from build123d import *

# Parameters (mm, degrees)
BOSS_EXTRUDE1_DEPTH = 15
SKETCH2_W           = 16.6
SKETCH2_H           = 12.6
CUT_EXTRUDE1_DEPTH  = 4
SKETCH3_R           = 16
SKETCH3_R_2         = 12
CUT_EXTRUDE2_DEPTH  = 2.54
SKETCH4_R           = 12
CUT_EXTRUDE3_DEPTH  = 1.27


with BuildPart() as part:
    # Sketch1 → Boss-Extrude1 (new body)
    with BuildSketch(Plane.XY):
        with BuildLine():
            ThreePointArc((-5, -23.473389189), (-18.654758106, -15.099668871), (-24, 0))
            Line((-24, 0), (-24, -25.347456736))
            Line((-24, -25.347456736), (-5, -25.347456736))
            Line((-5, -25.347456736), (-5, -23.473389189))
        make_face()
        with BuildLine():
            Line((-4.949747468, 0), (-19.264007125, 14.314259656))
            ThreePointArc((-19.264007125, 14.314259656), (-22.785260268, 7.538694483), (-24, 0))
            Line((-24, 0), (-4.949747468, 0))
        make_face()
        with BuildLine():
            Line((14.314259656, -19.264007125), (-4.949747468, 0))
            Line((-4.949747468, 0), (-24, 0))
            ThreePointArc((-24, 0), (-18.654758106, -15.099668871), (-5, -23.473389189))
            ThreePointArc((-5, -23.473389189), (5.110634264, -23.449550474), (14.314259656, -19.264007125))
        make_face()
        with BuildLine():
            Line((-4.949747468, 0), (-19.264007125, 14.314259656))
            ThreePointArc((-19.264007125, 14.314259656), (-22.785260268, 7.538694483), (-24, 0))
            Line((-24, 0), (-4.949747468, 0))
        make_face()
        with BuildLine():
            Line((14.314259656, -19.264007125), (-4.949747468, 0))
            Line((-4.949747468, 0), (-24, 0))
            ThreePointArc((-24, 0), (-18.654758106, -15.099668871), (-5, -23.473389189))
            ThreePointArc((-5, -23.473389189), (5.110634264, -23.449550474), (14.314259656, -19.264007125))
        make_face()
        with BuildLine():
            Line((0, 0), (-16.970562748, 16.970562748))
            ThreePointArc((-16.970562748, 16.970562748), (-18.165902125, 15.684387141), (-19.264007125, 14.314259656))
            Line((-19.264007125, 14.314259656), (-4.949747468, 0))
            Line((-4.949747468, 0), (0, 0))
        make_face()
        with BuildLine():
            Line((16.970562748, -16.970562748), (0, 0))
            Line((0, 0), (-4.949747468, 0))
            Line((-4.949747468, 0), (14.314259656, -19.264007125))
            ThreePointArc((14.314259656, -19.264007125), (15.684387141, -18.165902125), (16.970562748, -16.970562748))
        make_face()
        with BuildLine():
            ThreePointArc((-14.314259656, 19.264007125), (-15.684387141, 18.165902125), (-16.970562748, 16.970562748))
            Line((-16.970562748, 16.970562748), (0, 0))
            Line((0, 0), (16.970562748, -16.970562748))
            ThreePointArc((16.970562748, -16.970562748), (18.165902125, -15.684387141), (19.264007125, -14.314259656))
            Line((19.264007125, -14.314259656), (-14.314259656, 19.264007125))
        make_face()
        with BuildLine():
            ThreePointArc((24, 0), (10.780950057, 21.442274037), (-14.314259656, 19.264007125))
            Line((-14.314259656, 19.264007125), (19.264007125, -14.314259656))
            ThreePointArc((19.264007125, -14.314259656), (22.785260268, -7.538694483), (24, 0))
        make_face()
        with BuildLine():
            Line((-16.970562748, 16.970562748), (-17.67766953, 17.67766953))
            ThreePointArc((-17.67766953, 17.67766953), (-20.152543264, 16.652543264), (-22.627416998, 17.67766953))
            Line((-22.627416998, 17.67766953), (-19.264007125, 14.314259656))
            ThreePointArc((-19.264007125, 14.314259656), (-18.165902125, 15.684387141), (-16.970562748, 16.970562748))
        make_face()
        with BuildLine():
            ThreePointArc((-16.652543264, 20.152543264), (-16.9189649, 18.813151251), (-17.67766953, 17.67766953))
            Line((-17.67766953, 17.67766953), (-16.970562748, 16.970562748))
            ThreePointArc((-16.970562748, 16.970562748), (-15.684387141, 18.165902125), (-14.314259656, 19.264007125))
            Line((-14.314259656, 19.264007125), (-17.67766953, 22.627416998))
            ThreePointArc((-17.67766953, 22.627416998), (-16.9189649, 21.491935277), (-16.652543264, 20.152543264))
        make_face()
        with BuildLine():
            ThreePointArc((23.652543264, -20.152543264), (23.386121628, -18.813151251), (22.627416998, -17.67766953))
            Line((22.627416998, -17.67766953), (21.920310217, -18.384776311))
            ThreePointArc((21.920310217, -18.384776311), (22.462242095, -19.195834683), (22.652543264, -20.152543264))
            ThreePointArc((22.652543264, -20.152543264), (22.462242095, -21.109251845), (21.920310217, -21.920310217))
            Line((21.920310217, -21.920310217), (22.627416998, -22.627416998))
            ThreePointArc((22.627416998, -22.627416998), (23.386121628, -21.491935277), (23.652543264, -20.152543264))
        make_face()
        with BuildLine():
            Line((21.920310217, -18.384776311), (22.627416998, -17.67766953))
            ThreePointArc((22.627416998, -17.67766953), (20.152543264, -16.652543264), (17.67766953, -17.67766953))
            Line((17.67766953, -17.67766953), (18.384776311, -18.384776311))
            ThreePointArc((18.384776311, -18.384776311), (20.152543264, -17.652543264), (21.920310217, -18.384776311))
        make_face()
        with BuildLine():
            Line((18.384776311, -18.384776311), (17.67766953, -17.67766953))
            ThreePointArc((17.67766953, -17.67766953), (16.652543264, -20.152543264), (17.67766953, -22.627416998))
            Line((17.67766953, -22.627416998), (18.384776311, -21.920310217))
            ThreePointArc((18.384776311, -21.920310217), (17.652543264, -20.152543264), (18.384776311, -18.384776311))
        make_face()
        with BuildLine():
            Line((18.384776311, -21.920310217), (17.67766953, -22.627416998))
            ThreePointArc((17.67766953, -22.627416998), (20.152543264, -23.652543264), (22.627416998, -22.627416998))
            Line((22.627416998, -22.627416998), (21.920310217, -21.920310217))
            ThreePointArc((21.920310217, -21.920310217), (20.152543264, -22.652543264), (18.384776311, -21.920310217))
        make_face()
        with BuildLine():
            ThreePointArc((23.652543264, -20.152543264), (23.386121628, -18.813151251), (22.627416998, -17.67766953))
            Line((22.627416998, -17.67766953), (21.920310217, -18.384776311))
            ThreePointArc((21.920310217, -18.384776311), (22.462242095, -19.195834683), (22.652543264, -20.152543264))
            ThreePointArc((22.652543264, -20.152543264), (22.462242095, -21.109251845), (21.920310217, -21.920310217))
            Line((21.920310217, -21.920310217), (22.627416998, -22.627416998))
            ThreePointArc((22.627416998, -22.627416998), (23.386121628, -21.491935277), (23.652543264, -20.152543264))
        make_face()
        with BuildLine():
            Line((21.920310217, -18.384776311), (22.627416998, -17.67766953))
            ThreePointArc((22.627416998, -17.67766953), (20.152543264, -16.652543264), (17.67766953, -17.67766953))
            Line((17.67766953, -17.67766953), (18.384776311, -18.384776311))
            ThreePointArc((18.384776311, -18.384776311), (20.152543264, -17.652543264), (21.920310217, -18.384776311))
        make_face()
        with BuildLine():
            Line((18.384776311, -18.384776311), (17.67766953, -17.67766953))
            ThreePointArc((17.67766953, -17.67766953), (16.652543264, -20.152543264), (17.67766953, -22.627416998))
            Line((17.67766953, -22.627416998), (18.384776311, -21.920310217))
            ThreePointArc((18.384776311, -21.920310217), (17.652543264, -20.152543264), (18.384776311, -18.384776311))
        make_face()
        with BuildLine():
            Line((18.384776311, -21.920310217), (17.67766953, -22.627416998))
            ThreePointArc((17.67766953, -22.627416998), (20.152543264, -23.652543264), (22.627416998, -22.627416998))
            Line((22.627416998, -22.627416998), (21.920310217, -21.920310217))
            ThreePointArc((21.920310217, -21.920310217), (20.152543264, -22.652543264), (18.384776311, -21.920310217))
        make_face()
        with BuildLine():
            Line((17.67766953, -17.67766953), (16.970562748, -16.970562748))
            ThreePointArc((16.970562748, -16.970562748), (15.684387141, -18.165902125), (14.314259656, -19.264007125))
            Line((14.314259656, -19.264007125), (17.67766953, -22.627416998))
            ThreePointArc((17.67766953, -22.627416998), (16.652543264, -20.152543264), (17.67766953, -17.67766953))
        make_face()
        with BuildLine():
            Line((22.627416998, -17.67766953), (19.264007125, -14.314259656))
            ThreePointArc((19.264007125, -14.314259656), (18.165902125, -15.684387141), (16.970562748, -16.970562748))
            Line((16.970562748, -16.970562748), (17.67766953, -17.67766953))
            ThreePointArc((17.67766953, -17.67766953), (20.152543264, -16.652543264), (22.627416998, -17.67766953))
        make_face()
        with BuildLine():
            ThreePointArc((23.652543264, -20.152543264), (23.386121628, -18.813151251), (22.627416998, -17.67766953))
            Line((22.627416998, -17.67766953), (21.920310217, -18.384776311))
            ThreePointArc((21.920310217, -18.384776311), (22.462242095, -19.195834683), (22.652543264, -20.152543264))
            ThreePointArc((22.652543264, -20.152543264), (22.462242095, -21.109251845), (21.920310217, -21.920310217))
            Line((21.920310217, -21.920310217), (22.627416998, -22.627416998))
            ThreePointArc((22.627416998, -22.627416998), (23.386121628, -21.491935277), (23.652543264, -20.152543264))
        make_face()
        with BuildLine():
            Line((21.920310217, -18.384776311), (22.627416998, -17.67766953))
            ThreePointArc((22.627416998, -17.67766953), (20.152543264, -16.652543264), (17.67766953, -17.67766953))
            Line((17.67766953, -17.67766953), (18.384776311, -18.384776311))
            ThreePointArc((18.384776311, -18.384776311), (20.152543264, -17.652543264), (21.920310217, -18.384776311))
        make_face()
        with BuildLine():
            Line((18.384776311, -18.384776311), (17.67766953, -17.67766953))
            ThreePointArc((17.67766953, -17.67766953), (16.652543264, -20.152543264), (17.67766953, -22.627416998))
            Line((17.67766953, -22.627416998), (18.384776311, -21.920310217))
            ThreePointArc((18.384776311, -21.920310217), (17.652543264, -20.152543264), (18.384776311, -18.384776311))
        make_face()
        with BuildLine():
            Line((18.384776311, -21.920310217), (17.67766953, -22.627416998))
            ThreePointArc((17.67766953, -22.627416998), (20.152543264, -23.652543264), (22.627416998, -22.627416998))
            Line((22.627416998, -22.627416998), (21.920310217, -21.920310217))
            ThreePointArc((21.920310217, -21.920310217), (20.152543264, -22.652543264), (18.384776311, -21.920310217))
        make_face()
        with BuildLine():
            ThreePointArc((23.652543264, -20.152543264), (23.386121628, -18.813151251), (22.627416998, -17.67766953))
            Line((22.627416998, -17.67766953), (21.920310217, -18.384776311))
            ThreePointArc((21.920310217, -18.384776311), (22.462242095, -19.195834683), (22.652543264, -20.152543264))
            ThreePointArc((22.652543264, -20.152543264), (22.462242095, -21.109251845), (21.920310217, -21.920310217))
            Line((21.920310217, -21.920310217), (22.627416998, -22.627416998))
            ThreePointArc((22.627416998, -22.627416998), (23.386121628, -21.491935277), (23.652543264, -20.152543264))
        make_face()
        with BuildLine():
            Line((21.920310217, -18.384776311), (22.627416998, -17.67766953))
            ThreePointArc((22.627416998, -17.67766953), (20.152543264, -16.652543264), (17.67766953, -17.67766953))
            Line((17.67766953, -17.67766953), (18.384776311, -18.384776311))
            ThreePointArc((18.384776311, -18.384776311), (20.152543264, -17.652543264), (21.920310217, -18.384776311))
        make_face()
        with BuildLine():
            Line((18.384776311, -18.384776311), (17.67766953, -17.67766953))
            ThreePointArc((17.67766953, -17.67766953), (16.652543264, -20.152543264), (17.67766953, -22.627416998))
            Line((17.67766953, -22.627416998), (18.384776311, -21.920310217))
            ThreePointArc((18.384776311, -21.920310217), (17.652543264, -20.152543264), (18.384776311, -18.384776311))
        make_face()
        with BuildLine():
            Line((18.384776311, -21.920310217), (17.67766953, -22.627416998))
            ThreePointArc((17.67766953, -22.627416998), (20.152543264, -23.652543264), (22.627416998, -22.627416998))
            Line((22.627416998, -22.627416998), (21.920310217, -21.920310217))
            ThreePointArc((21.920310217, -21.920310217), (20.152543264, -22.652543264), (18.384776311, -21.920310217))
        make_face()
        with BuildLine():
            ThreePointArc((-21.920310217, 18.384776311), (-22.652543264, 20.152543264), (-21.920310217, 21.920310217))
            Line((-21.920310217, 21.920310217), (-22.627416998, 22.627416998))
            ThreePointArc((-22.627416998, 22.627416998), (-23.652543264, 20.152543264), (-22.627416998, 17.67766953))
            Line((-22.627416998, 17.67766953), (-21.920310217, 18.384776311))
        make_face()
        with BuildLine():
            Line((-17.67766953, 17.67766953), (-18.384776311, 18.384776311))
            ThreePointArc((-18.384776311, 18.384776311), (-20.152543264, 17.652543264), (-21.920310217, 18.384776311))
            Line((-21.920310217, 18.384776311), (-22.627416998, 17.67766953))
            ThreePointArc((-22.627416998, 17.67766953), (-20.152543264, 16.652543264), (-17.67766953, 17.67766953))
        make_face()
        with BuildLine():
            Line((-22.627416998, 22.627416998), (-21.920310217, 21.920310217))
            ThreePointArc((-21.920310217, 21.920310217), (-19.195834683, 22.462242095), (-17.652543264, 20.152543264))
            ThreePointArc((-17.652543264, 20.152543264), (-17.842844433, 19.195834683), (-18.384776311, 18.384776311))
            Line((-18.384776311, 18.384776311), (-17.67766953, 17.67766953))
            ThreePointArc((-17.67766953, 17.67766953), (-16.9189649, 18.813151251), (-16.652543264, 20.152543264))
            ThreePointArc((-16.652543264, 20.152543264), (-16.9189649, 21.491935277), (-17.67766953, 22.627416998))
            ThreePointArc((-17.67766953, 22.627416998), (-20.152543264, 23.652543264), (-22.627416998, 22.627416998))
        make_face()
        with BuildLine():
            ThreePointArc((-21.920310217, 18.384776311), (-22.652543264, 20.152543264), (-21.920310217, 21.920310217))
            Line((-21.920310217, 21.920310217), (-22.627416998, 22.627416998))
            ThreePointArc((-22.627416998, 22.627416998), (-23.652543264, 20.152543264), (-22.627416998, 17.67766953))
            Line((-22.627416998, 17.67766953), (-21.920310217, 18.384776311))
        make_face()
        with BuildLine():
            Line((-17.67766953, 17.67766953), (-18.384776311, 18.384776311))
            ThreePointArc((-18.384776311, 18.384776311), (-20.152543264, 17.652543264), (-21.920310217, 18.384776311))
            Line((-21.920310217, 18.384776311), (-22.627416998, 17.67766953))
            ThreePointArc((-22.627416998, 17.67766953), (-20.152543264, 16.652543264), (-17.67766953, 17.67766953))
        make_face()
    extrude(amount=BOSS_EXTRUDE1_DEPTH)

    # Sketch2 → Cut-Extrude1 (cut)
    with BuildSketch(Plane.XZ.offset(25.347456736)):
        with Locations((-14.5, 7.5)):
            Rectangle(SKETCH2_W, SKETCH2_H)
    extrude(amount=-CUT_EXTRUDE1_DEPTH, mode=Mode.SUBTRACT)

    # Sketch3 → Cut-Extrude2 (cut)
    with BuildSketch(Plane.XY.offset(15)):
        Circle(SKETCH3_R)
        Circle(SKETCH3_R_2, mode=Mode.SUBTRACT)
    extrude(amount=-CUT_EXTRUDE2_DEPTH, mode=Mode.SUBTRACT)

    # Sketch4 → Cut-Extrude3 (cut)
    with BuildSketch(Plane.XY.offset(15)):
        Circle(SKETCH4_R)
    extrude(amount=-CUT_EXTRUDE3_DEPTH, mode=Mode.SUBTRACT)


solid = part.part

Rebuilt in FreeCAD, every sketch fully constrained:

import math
import FreeCAD as App
import Part
import Sketcher
from FreeCAD import Vector
Q = App.Units.Quantity

doc = App.newDocument("Part")
body = doc.addObject("PartDesign::Body", "Body")

sketch1 = body.newObject("Sketcher::SketchObject", "Sketch")
sketch1.AttachmentSupport = (doc.getObject("XY_Plane"), [""])
sketch1.MapMode = "FlatFace"
sketch1.addGeometry(Part.LineSegment(Vector(-24, -25.3, 0), Vector(-5, -25.3, 0)), False)
sketch1.addGeometry(Part.LineSegment(Vector(-5, -25.3, 0), Vector(-5, -23.5, 0)), False)
sketch1.addGeometry(Part.ArcOfCircle(Part.Circle(Vector(0, 0, 0), Vector(0, 0, 1), 24), math.radians(-102), math.radians(-53)), False)
sketch1.addGeometry(Part.LineSegment(Vector(14.3, -19.3, 0), Vector(17.7, -22.6, 0)), False)
sketch1.addGeometry(Part.ArcOfCircle(Part.Circle(Vector(20.2, -20.2, 0), Vector(0, 0, 1), 3.5), math.radians(-135), math.radians(-45)), False)
sketch1.addGeometry(Part.ArcOfCircle(Part.Circle(Vector(20.2, -20.2, 0), Vector(0, 0, 1), 3.5), math.radians(-45), math.radians(0)), False)
sketch1.addGeometry(Part.ArcOfCircle(Part.Circle(Vector(20.2, -20.2, 0), Vector(0, 0, 1), 3.5), math.radians(0), math.radians(45)), False)
sketch1.addGeometry(Part.LineSegment(Vector(22.6, -17.7, 0), Vector(19.3, -14.3, 0)), False)
sketch1.addGeometry(Part.ArcOfCircle(Part.Circle(Vector(0, 0, 0), Vector(0, 0, 1), 24), math.radians(-37), math.radians(0)), False)
sketch1.addGeometry(Part.ArcOfCircle(Part.Circle(Vector(0, 0, 0), Vector(0, 0, 1), 24), math.radians(0), math.radians(127)), False)
sketch1.addGeometry(Part.LineSegment(Vector(-14.3, 19.3, 0), Vector(-17.7, 22.6, 0)), False)
sketch1.addGeometry(Part.ArcOfCircle(Part.Circle(Vector(-20.2, 20.2, 0), Vector(0, 0, 1), 3.5), math.radians(45), math.radians(135)), False)
sketch1.addGeometry(Part.ArcOfCircle(Part.Circle(Vector(-20.2, 20.2, 0), Vector(0, 0, 1), 3.5), math.radians(135), math.radians(225)), False)
sketch1.addGeometry(Part.LineSegment(Vector(-22.6, 17.7, 0), Vector(-19.3, 14.3, 0)), False)
sketch1.addGeometry(Part.ArcOfCircle(Part.Circle(Vector(0, 0, 0), Vector(0, 0, 1), 24), math.radians(143), math.radians(180)), False)
sketch1.addGeometry(Part.LineSegment(Vector(-24, 0, 0), Vector(-24, -25.3, 0)), False)
sketch1.addGeometry(Part.ArcOfCircle(Part.Circle(Vector(-20.2, 20.2, 0), Vector(0, 0, 1), 2.5), math.radians(-135), math.radians(-45)), False)
sketch1.addGeometry(Part.ArcOfCircle(Part.Circle(Vector(-20.2, 20.2, 0), Vector(0, 0, 1), 2.5), math.radians(135), math.radians(225)), False)
sketch1.addGeometry(Part.ArcOfCircle(Part.Circle(Vector(-20.2, 20.2, 0), Vector(0, 0, 1), 2.5), math.radians(0), math.radians(135)), False)
sketch1.addGeometry(Part.ArcOfCircle(Part.Circle(Vector(-20.2, 20.2, 0), Vector(0, 0, 1), 2.5), math.radians(-45), math.radians(0)), False)
sketch1.addGeometry(Part.ArcOfCircle(Part.Circle(Vector(20.2, -20.2, 0), Vector(0, 0, 1), 2.5), math.radians(-45), math.radians(0)), False)
sketch1.addGeometry(Part.ArcOfCircle(Part.Circle(Vector(20.2, -20.2, 0), Vector(0, 0, 1), 2.5), math.radians(-135), math.radians(-45)), False)
sketch1.addGeometry(Part.ArcOfCircle(Part.Circle(Vector(20.2, -20.2, 0), Vector(0, 0, 1), 2.5), math.radians(135), math.radians(225)), False)
sketch1.addGeometry(Part.ArcOfCircle(Part.Circle(Vector(20.2, -20.2, 0), Vector(0, 0, 1), 2.5), math.radians(45), math.radians(135)), False)
sketch1.addGeometry(Part.ArcOfCircle(Part.Circle(Vector(20.2, -20.2, 0), Vector(0, 0, 1), 2.5), math.radians(0), math.radians(45)), False)
sketch1.addConstraint(Sketcher.Constraint("Coincident", 0, 2, 1, 1))
sketch1.addConstraint(Sketcher.Constraint("Coincident", 1, 2, 2, 1))
sketch1.addConstraint(Sketcher.Constraint("Coincident", 2, 2, 3, 1))
sketch1.addConstraint(Sketcher.Constraint("Tangent", 3, 2, 4, 1))
sketch1.addConstraint(Sketcher.Constraint("Tangent", 4, 2, 5, 1))
sketch1.addConstraint(Sketcher.Constraint("Tangent", 5, 2, 6, 1))
sketch1.addConstraint(Sketcher.Constraint("Tangent", 6, 2, 7, 1))
sketch1.addConstraint(Sketcher.Constraint("Coincident", 7, 2, 8, 1))
sketch1.addConstraint(Sketcher.Constraint("Tangent", 8, 2, 9, 1))
sketch1.addConstraint(Sketcher.Constraint("Coincident", 9, 2, 10, 1))
sketch1.addConstraint(Sketcher.Constraint("Tangent", 10, 2, 11, 1))
sketch1.addConstraint(Sketcher.Constraint("Tangent", 11, 2, 12, 1))
sketch1.addConstraint(Sketcher.Constraint("Tangent", 12, 2, 13, 1))
sketch1.addConstraint(Sketcher.Constraint("Coincident", 13, 2, 14, 1))
sketch1.addConstraint(Sketcher.Constraint("Tangent", 14, 2, 15, 1))
sketch1.addConstraint(Sketcher.Constraint("Coincident", 15, 2, 0, 1))
sketch1.addConstraint(Sketcher.Constraint("Tangent", 16, 1, 17, 2))
sketch1.addConstraint(Sketcher.Constraint("Tangent", 17, 1, 18, 2))
sketch1.addConstraint(Sketcher.Constraint("Tangent", 18, 1, 19, 2))
sketch1.addConstraint(Sketcher.Constraint("Tangent", 19, 1, 16, 2))
sketch1.addConstraint(Sketcher.Constraint("Tangent", 20, 1, 21, 2))
sketch1.addConstraint(Sketcher.Constraint("Tangent", 21, 1, 22, 2))
sketch1.addConstraint(Sketcher.Constraint("Tangent", 22, 1, 23, 2))
sketch1.addConstraint(Sketcher.Constraint("Tangent", 23, 1, 24, 2))
sketch1.addConstraint(Sketcher.Constraint("Tangent", 24, 1, 20, 2))
sketch1.addConstraint(Sketcher.Constraint("Horizontal", 0))
sketch1.addConstraint(Sketcher.Constraint("Vertical", 1))
sketch1.addConstraint(Sketcher.Constraint("Vertical", 15))
sketch1.addConstraint(Sketcher.Constraint("Coincident", 2, 3, -1, 1))
sketch1.addConstraint(Sketcher.Constraint("Coincident", 8, 3, -1, 1))
sketch1.addConstraint(Sketcher.Constraint("Coincident", 14, 3, -1, 1))
sketch1.addConstraint(Sketcher.Constraint("Coincident", 6, 3, 4, 3))
sketch1.addConstraint(Sketcher.Constraint("Coincident", 16, 3, 11, 3))
sketch1.addConstraint(Sketcher.Constraint("Coincident", 20, 3, 4, 3))
sketch1.addConstraint(Sketcher.Constraint("Coincident", 22, 3, 4, 3))
sketch1.addConstraint(Sketcher.Constraint("Equal", 2, 8))
sketch1.addConstraint(Sketcher.Constraint("Equal", 8, 9))
sketch1.addConstraint(Sketcher.Constraint("Equal", 6, 11))
sketch1.addConstraint(Sketcher.Constraint("Equal", 11, 12))
sketch1.addConstraint(Sketcher.Constraint("Equal", 9, 14))
sketch1.addConstraint(Sketcher.Constraint("Equal", 16, 17))
sketch1.addConstraint(Sketcher.Constraint("Equal", 19, 20))
sketch1.addConstraint(Sketcher.Constraint("Symmetric", 4, 3, 11, 3, -1, 1))
sketch1.addConstraint(Sketcher.Constraint("PointOnObject", 8, 2, -1))
sketch1.addConstraint(Sketcher.Constraint("Parallel", 3, 7))
sketch1.addConstraint(Sketcher.Constraint("Parallel", 7, 10))
sketch1.addConstraint(Sketcher.Constraint("Parallel", 10, 13))
sketch1.addConstraint(Sketcher.Constraint("Horizontal", 3, 2, 4, 2))
sketch1.addConstraint(Sketcher.Constraint("Horizontal", 24, 3, 5, 2))
sketch1.addConstraint(Sketcher.Constraint("Horizontal", 10, 2, 11, 2))
sketch1.addConstraint(Sketcher.Constraint("Horizontal", 19, 3, 18, 1))
sketch1.addConstraint(Sketcher.Constraint("Horizontal", 16, 1, 19, 1))
sketch1.addConstraint(Sketcher.Constraint("Horizontal", 20, 1, 21, 1))
sketch1.addConstraint(Sketcher.Constraint("Horizontal", 22, 1, 23, 1))
sketch1.addConstraint(Sketcher.Constraint("Horizontal", 5, 2, 24, 1))
sketch1.addConstraint(Sketcher.Constraint("Vertical", 16, 1, 17, 1))
sketch1.addConstraint(Sketcher.Constraint("Vertical", 21, 1, 22, 1))
sketch1.addConstraint(Sketcher.Constraint("Equal", 3, 7))
sketch1.addConstraint(Sketcher.Constraint("Radius", 2, Q("24 mm")))
sketch1.addConstraint(Sketcher.Constraint("Radius", 4, Q("3.5 mm")))
sketch1.addConstraint(Sketcher.Constraint("Radius", 16, Q("2.5 mm")))
sketch1.addConstraint(Sketcher.Constraint("DistanceX", 0, 1, 0, 2, Q("19 mm")))
sketch1.addConstraint(Sketcher.Constraint("Angle", 3, Q("-45 deg")))
sketch1.addConstraint(Sketcher.Constraint("Distance", 3, Q("4.75658 mm")))
sketch1.addConstraint(Sketcher.Constraint("DistanceY", 1, 1, 1, 2, Q("1.874068 mm")))
sketch1.addConstraint(Sketcher.Constraint("DistanceX", 16, 1, -1, 1, Q("21.92031 mm")))
sketch1.addConstraint(Sketcher.Constraint("DistanceX", -1, 1, 20, 1, Q("21.92031 mm")))
pad1 = body.newObject("PartDesign::Pad", "Pad")
pad1.Profile = sketch1
pad1.Length = 15

sketch2 = body.newObject("Sketcher::SketchObject", "Sketch001")
sketch2.AttachmentSupport = (doc.getObject("XZ_Plane"), [""])
sketch2.MapMode = "FlatFace"
sketch2.AttachmentOffset = App.Placement(Vector(0, 0, 25.347457), App.Rotation())
sketch2.addGeometry(Part.LineSegment(Vector(-23, 14, 0), Vector(-23, 1, 0)), False)
sketch2.addGeometry(Part.LineSegment(Vector(-23, 1, 0), Vector(-6, 1, 0)), False)
sketch2.addGeometry(Part.LineSegment(Vector(-6, 1, 0), Vector(-6, 14, 0)), False)
sketch2.addGeometry(Part.LineSegment(Vector(-6, 14, 0), Vector(-23, 14, 0)), False)
sketch2.addConstraint(Sketcher.Constraint("Coincident", 0, 2, 1, 1))
sketch2.addConstraint(Sketcher.Constraint("Coincident", 1, 2, 2, 1))
sketch2.addConstraint(Sketcher.Constraint("Coincident", 2, 2, 3, 1))
sketch2.addConstraint(Sketcher.Constraint("Coincident", 3, 2, 0, 1))
sketch2.addConstraint(Sketcher.Constraint("Vertical", 0))
sketch2.addConstraint(Sketcher.Constraint("Horizontal", 1))
sketch2.addConstraint(Sketcher.Constraint("Vertical", 2))
sketch2.addConstraint(Sketcher.Constraint("Horizontal", 3))
sketch2.addConstraint(Sketcher.Constraint("DistanceX", 1, 1, 1, 2, Q("16.6 mm")))
sketch2.addConstraint(Sketcher.Constraint("DistanceY", 0, 2, 0, 1, Q("12.6 mm")))
sketch2.addConstraint(Sketcher.Constraint("DistanceX", 0, 2, -1, 1, Q("22.8 mm")))
sketch2.addConstraint(Sketcher.Constraint("DistanceY", -1, 1, 0, 2, Q("1.2 mm")))
pocket1 = body.newObject("PartDesign::Pocket", "Pocket")
pocket1.Profile = sketch2
pocket1.Length = 4

sketch3 = body.newObject("Sketcher::SketchObject", "Sketch002")
sketch3.AttachmentSupport = (doc.getObject("XY_Plane"), [""])
sketch3.MapMode = "FlatFace"
sketch3.AttachmentOffset = App.Placement(Vector(0, 0, 15), App.Rotation())
sketch3.addGeometry(Part.Circle(Vector(0, 0, 0), Vector(0, 0, 1), 16), False)
sketch3.addGeometry(Part.Circle(Vector(0, 0, 0), Vector(0, 0, 1), 12), False)
sketch3.addConstraint(Sketcher.Constraint("Coincident", 0, 3, -1, 1))
sketch3.addConstraint(Sketcher.Constraint("Coincident", 1, 3, -1, 1))
sketch3.addConstraint(Sketcher.Constraint("Diameter", 0, Q("32 mm")))
sketch3.addConstraint(Sketcher.Constraint("Diameter", 1, Q("24 mm")))
pocket2 = body.newObject("PartDesign::Pocket", "Pocket001")
pocket2.Profile = sketch3
pocket2.Length = 2.54

sketch4 = body.newObject("Sketcher::SketchObject", "Sketch003")
sketch4.AttachmentSupport = (doc.getObject("XY_Plane"), [""])
sketch4.MapMode = "FlatFace"
sketch4.AttachmentOffset = App.Placement(Vector(0, 0, 15), App.Rotation())
sketch4.addGeometry(Part.Circle(Vector(0, 0, 0), Vector(0, 0, 1), 12), False)
sketch4.addConstraint(Sketcher.Constraint("Coincident", 0, 3, -1, 1))
sketch4.addConstraint(Sketcher.Constraint("Diameter", 0, Q("24 mm")))
pocket3 = body.newObject("PartDesign::Pocket", "Pocket002")
pocket3.Profile = sketch4
pocket3.Length = 1.27

doc.recompute()
